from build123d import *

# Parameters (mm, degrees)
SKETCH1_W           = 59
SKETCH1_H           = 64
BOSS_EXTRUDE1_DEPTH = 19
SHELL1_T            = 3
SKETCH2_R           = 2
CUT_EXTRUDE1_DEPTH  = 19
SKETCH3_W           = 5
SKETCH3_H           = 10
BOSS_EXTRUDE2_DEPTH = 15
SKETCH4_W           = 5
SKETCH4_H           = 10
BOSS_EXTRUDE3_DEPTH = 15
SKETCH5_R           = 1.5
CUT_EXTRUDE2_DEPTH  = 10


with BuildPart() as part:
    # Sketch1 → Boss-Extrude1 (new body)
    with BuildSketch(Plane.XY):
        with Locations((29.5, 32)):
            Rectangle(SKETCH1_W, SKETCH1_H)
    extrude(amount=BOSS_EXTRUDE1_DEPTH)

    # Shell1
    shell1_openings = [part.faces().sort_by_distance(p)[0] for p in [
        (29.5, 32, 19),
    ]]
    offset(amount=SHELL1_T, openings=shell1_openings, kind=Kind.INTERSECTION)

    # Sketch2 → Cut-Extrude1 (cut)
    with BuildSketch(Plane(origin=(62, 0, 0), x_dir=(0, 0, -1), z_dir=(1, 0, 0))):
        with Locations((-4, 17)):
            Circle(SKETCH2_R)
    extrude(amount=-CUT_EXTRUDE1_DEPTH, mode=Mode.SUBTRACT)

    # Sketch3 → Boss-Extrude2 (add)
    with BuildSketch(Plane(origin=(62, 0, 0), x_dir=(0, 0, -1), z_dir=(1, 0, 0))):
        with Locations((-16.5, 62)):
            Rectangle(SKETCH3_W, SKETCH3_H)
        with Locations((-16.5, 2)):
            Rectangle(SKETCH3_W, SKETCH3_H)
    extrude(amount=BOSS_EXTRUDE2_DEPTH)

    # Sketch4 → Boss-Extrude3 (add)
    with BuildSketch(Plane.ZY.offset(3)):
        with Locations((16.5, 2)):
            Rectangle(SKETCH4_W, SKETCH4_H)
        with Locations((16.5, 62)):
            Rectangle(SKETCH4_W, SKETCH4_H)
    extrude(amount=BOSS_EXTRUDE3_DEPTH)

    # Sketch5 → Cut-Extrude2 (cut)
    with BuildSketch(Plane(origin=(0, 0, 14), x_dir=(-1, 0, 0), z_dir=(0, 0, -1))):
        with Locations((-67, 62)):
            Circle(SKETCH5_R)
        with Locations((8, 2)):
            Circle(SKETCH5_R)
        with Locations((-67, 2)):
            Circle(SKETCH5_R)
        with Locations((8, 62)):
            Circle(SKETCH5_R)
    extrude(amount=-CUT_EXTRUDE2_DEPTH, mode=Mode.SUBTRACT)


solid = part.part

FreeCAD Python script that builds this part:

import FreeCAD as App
import Part
import Sketcher

V = App.Vector
Q = App.Units.Quantity


def faces_at(feature, points):
    """Names of the faces that lie closest to the given points."""
    faces = feature.Shape.Faces
    near = lambda p: min(range(len(faces)), key=lambda i: faces[i].distToShape(Part.Vertex(*p))[0])
    return sorted({f"Face{near(p) + 1}" for p in points})


def add_polygon(sketch, points):
    """Adds a closed chain of lines whose ends are joined by coincident constraints."""
    first, n = sketch.GeometryCount, len(points)
    for a, b in zip(points, points[1:] + points[:1]):
        sketch.addGeometry(Part.LineSegment(App.Vector(*a, 0), App.Vector(*b, 0)), False)
    for i in range(n):
        sketch.addConstraint(Sketcher.Constraint("Coincident", first + i, 2, first + (i + 1) % n, 1))

doc = App.newDocument("Part")
body = doc.addObject("PartDesign::Body", "Body")

sketch1 = body.newObject("Sketcher::SketchObject", "Sketch")
sketch1.AttachmentSupport = (doc.getObject("XY_Plane"), [""])
sketch1.MapMode = "FlatFace"
add_polygon(sketch1, [(0, 64), (0, 0), (59, 0), (59, 64)])
sketch1.addConstraint([
    Sketcher.Constraint("Vertical", 0),
    Sketcher.Constraint("Horizontal", 1),
    Sketcher.Constraint("Vertical", 2),
    Sketcher.Constraint("Horizontal", 3),
    Sketcher.Constraint("Coincident", 0, 2, -1, 1),
    Sketcher.Constraint("DistanceX", 1, 1, 1, 2, Q("59 mm")),
    Sketcher.Constraint("DistanceY", 0, 2, 0, 1, Q("64 mm")),
])
pad1 = body.newObject("PartDesign::Pad", "Pad")
pad1.Profile = sketch1
pad1.Length = 19
doc.recompute()

thickness = body.newObject("PartDesign::Thickness", "Thickness")
thickness.Base = (pad1, faces_at(pad1, [(29.5, 32, 19)]))
thickness.Value = 3
thickness.Reversed = False
thickness.Join = "Intersection"

sketch2 = body.newObject("Sketcher::SketchObject", "Sketch001")
sketch2.AttachmentSupport = (doc.getObject("YZ_Plane"), [""])
sketch2.MapMode = "FlatFace"
sketch2.AttachmentOffset = App.Placement(V(0, 0, 62), App.Rotation())
sketch2.addGeometry(Part.Circle(V(17, 4, 0), V(0, 0, 1), 2), False)
sketch2.addConstraint([
    Sketcher.Constraint("Diameter", 0, Q("4 mm")),
    Sketcher.Constraint("DistanceX", -1, 1, 0, 3, Q("17 mm")),
    Sketcher.Constraint("DistanceY", -1, 1, 0, 3, Q("4 mm")),
])
pocket1 = body.newObject("PartDesign::Pocket", "Pocket")
pocket1.Profile = sketch2
pocket1.Length = 19

sketch3 = body.newObject("Sketcher::SketchObject", "Sketch002")
sketch3.AttachmentSupport = (doc.getObject("YZ_Plane"), [""])
sketch3.MapMode = "FlatFace"
sketch3.AttachmentOffset = App.Placement(V(0, 0, 62), App.Rotation())
add_polygon(sketch3, [(67, 19), (57, 19), (57, 14), (67, 14)])
add_polygon(sketch3, [(7, 19), (-3, 19), (-3, 14), (7, 14)])
sketch3.addConstraint([
    Sketcher.Constraint("Horizontal", 0),
    Sketcher.Constraint("Vertical", 1),
    Sketcher.Constraint("Horizontal", 2),
    Sketcher.Constraint("Vertical", 3),
    Sketcher.Constraint("Horizontal", 4),
    Sketcher.Constraint("Vertical", 5),
    Sketcher.Constraint("Horizontal", 6),
    Sketcher.Constraint("Vertical", 7),
    Sketcher.Constraint("Horizontal", 3, 2, 4, 2),
    Sketcher.Constraint("Horizontal", 2, 2, 5, 2),
    Sketcher.Constraint("Equal", 2, 4),
    Sketcher.Constraint("DistanceX", 0, 2, 0, 1, Q("10 mm")),
    Sketcher.Constraint("DistanceY", 1, 2, 1, 1, Q("5 mm")),
    Sketcher.Constraint("DistanceX", -1, 1, 0, 2, Q("57 mm")),
    Sketcher.Constraint("DistanceY", -1, 1, 0, 2, Q("19 mm")),
    Sketcher.Constraint("DistanceX", 4, 2, -1, 1, Q("3 mm")),
])
pad2 = body.newObject("PartDesign::Pad", "Pad001")
pad2.Profile = sketch3
pad2.Length = 15

sketch4 = body.newObject("Sketcher::SketchObject", "Sketch003")
sketch4.AttachmentSupport = (doc.getObject("YZ_Plane"), [""])
sketch4.MapMode = "FlatFace"
sketch4.AttachmentOffset = App.Placement(V(0, 0, -3), App.Rotation())
add_polygon(sketch4, [(7, 14), (-3, 14), (-3, 19), (7, 19)])
add_polygon(sketch4, [(67, 14), (57, 14), (57, 19), (67, 19)])
sketch4.addConstraint([
    Sketcher.Constraint("Horizontal", 0),
    Sketcher.Constraint("Vertical", 1),
    Sketcher.Constraint("Horizontal", 2),
    Sketcher.Constraint("Vertical", 3),
    Sketcher.Constraint("Horizontal", 4),
    Sketcher.Constraint("Vertical", 5),
    Sketcher.Constraint("Horizontal", 6),
    Sketcher.Constraint("Vertical", 7),
    Sketcher.Constraint("Horizontal", 3, 2, 4, 2),
    Sketcher.Constraint("Horizontal", 2, 2, 5, 2),
    Sketcher.Constraint("Equal", 2, 4),
    Sketcher.Constraint("DistanceX", 0, 2, 0, 1, Q("10 mm")),
    Sketcher.Constraint("DistanceY", 1, 1, 1, 2, Q("5 mm")),
    Sketcher.Constraint("DistanceX", 0, 2, -1, 1, Q("3 mm")),
    Sketcher.Constraint("DistanceY", -1, 1, 0, 2, Q("14 mm")),
    Sketcher.Constraint("DistanceX", -1, 1, 4, 2, Q("57 mm")),
])
pad3 = body.newObject("PartDesign::Pad", "Pad002")
pad3.Profile = sketch4
pad3.Length = 15
pad3.Reversed = True

sketch5 = body.newObject("Sketcher::SketchObject", "Sketch004")
sketch5.AttachmentSupport = (doc.getObject("XY_Plane"), [""])
sketch5.MapMode = "FlatFace"
sketch5.AttachmentOffset = App.Placement(V(0, 0, 14), App.Rotation())
sketch5.addGeometry([
    Part.Circle(V(67, 62, 0), V(0, 0, 1), 1.5),
    Part.Circle(V(-8, 2, 0), V(0, 0, 1), 1.5),
    Part.Circle(V(67, 2, 0), V(0, 0, 1), 1.5),
    Part.Circle(V(-8, 62, 0), V(0, 0, 1), 1.5),
], False)
sketch5.addConstraint([
    Sketcher.Constraint("Equal", 0, 1),
    Sketcher.Constraint("Equal", 1, 2),
    Sketcher.Constraint("Equal", 2, 3),
    Sketcher.Constraint("Horizontal", 1, 3, 2, 3),
    Sketcher.Constraint("Horizontal", 0, 3, 3, 3),
    Sketcher.Constraint("Vertical", 0, 3, 2, 3),
    Sketcher.Constraint("Vertical", 1, 3, 3, 3),
    Sketcher.Constraint("Diameter", 0, Q("3 mm")),
    Sketcher.Constraint("DistanceX", -1, 1, 0, 3, Q("67 mm")),
    Sketcher.Constraint("DistanceY", -1, 1, 0, 3, Q("62 mm")),
    Sketcher.Constraint("DistanceX", 1, 3, -1, 1, Q("8 mm")),
    Sketcher.Constraint("DistanceY", -1, 1, 1, 3, Q("2 mm")),
])
pocket2 = body.newObject("PartDesign::Pocket", "Pocket001")
pocket2.Profile = sketch5
pocket2.Length = 10
pocket2.Reversed = True

doc.recompute()
